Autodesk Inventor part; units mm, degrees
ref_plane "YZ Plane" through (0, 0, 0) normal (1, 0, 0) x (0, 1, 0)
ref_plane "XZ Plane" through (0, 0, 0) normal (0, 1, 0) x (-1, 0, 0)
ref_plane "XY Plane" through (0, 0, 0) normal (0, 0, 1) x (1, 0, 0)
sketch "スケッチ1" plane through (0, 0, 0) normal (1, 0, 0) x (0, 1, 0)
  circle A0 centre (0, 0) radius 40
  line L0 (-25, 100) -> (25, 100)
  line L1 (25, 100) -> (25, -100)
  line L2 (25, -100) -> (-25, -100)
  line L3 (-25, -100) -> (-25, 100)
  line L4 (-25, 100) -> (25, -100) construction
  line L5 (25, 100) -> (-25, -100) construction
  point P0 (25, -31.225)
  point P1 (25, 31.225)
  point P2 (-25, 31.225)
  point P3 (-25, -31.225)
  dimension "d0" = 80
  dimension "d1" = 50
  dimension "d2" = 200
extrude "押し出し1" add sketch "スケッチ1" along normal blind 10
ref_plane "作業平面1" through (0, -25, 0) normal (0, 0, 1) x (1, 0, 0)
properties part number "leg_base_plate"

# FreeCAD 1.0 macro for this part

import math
import FreeCAD as App
import Part
import Sketcher
Q = App.Units.Quantity

doc = App.newDocument("Part")
body = doc.addObject("PartDesign::Body", "Body")

sketch1 = body.newObject("Sketcher::SketchObject", "Sketch")
sketch1.AttachmentSupport = (doc.getObject("YZ_Plane"), [""])
sketch1.MapMode = "FlatFace"
sketch1.addGeometry([
    Part.ArcOfCircle(Part.Circle(App.Vector(0, 0, 0), App.Vector(0, 0, 1), 40), math.radians(-51), math.radians(51)),
    Part.LineSegment(App.Vector(25, 31, 0), App.Vector(25, 100, 0)),
    Part.LineSegment(App.Vector(25, 100, 0), App.Vector(-25, 100, 0)),
    Part.LineSegment(App.Vector(-25, 100, 0), App.Vector(-25, 31, 0)),
    Part.ArcOfCircle(Part.Circle(App.Vector(0, 0, 0), App.Vector(0, 0, 1), 40), math.radians(129), math.radians(231)),
    Part.LineSegment(App.Vector(-25, -31, 0), App.Vector(-25, -100, 0)),
    Part.LineSegment(App.Vector(-25, -100, 0), App.Vector(25, -100, 0)),
    Part.LineSegment(App.Vector(25, -100, 0), App.Vector(25, -31, 0)),
], False)
sketch1.addConstraint([
    Sketcher.Constraint("Coincident", 0, 2, 1, 1),
    Sketcher.Constraint("Coincident", 1, 2, 2, 1),
    Sketcher.Constraint("Coincident", 2, 2, 3, 1),
    Sketcher.Constraint("Coincident", 3, 2, 4, 1),
    Sketcher.Constraint("Coincident", 4, 2, 5, 1),
    Sketcher.Constraint("Coincident", 5, 2, 6, 1),
    Sketcher.Constraint("Coincident", 6, 2, 7, 1),
    Sketcher.Constraint("Coincident", 7, 2, 0, 1),
    Sketcher.Constraint("Vertical", 1),
    Sketcher.Constraint("Horizontal", 2),
    Sketcher.Constraint("Vertical", 3),
    Sketcher.Constraint("Vertical", 5),
    Sketcher.Constraint("Horizontal", 6),
    Sketcher.Constraint("Vertical", 7),
    Sketcher.Constraint("Coincident", 0, 3, -1, 1),
    Sketcher.Constraint("Coincident", 4, 3, -1, 1),
    Sketcher.Constraint("Equal", 0, 4),
    Sketcher.Constraint("Symmetric", 1, 2, 5, 2, -1, 1),
    Sketcher.Constraint("Horizontal", 0, 2, 3, 2),
    Sketcher.Constraint("Horizontal", 4, 2, 7, 2),
    Sketcher.Constraint("Radius", 0, Q("40 mm")),
    Sketcher.Constraint("DistanceX", 2, 2, 2, 1, Q("50 mm")),
    Sketcher.Constraint("DistanceY", -1, 1, 1, 2, Q("100 mm")),
])
pad1 = body.newObject("PartDesign::Pad", "Pad")
pad1.Profile = sketch1
pad1.Length = 10

doc.recompute()
